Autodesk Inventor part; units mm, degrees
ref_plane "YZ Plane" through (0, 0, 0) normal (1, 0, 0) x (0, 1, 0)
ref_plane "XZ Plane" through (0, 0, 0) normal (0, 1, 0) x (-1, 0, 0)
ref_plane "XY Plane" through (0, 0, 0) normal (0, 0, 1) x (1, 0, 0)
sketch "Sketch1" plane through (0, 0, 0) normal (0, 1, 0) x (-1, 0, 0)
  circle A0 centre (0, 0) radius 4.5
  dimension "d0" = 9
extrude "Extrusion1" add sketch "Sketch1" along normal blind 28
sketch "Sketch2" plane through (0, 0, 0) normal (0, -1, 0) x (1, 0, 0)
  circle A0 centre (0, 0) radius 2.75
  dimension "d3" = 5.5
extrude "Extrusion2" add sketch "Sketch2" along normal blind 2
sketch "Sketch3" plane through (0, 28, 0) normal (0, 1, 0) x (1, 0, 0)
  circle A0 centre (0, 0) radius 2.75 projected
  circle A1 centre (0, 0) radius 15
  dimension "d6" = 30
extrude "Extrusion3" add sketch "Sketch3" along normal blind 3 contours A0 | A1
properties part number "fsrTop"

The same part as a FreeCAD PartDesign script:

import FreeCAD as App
import Part
import Sketcher

doc = App.newDocument("Part")
body = doc.addObject("PartDesign::Body", "Body")

sketch1 = doc.addObject("Sketcher::SketchObject", "Sketch")
body.addObject(sketch1)
sketch1.AttachmentSupport = (doc.XZ_Plane, [""])
sketch1.MapMode = "FlatFace"
sketch1.addGeometry(Part.Circle(App.Vector(0, 0, 0), App.Vector(0, 0, 1), 4.5), False)
sketch1.addConstraint(Sketcher.Constraint("Coincident", 0, 3, -1, 1))
sketch1.addConstraint(Sketcher.Constraint("Diameter", 0, 9.0))
pad1 = doc.addObject("PartDesign::Pad", "Pad")
body.addObject(pad1)
pad1.Profile = sketch1
pad1.Length = 28
pad1.Reversed = True

sketch2 = doc.addObject("Sketcher::SketchObject", "Sketch001")
body.addObject(sketch2)
sketch2.AttachmentSupport = (doc.XZ_Plane, [""])
sketch2.MapMode = "FlatFace"
sketch2.addGeometry(Part.Circle(App.Vector(0, 0, 0), App.Vector(0, 0, 1), 2.8), False)
sketch2.addConstraint(Sketcher.Constraint("Coincident", 0, 3, -1, 1))
sketch2.addConstraint(Sketcher.Constraint("Diameter", 0, 5.5))
pad2 = doc.addObject("PartDesign::Pad", "Pad001")
body.addObject(pad2)
pad2.Profile = sketch2
pad2.Length = 2

sketch3 = doc.addObject("Sketcher::SketchObject", "Sketch002")
body.addObject(sketch3)
sketch3.AttachmentSupport = (doc.XZ_Plane, [""])
sketch3.MapMode = "FlatFace"
sketch3.AttachmentOffset = App.Placement(App.Vector(0, 0, -28), App.Rotation())
sketch3.addGeometry(Part.Circle(App.Vector(0, 0, 0), App.Vector(0, 0, 1), 15), False)
sketch3.addConstraint(Sketcher.Constraint("Coincident", 0, 3, -1, 1))
sketch3.addConstraint(Sketcher.Constraint("Diameter", 0, 30.0))
pad3 = doc.addObject("PartDesign::Pad", "Pad002")
body.addObject(pad3)
pad3.Profile = sketch3
pad3.Length = 3
pad3.Reversed = True

doc.recompute()
